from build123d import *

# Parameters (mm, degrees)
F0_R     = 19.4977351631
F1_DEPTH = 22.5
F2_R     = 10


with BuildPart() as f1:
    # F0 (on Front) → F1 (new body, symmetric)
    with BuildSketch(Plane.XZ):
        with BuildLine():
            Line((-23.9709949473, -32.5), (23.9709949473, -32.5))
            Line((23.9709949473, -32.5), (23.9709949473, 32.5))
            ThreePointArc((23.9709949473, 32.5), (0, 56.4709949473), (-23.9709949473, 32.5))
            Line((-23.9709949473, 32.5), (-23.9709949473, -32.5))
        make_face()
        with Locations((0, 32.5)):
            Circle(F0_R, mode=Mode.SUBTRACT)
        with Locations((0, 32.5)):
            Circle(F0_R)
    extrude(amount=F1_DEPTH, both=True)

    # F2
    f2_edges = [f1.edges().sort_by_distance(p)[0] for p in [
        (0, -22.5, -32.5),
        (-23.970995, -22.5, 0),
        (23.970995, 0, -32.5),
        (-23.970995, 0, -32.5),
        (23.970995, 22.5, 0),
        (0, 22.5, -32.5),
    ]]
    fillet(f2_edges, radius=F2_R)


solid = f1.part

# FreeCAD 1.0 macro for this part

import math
import FreeCAD as App
import Part
import Sketcher
from FreeCAD import Vector
Q = App.Units.Quantity


def edges_at(feature, points):
    """Names of the edges that pass closest to the given points."""
    edges = feature.Shape.Edges
    near = lambda p: min(range(len(edges)), key=lambda i: edges[i].distToShape(Part.Vertex(*p))[0])
    return sorted({f"Edge{near(p) + 1}" for p in points})

doc = App.newDocument("Part")
body = doc.addObject("PartDesign::Body", "Body")

sketch1 = body.newObject("Sketcher::SketchObject", "Sketch")
sketch1.AttachmentSupport = (doc.getObject("XZ_Plane"), [""])
sketch1.MapMode = "FlatFace"
sketch1.addGeometry([
    Part.LineSegment(Vector(-24, -32, 0), Vector(24, -32, 0)),
    Part.LineSegment(Vector(24, -32, 0), Vector(24, 32, 0)),
    Part.ArcOfCircle(Part.Circle(Vector(0, 32, 0), Vector(0, 0, 1), 24), math.radians(0), math.radians(180)),
    Part.LineSegment(Vector(-24, 32, 0), Vector(-24, -32, 0)),
], False)
sketch1.addConstraint([
    Sketcher.Constraint("Coincident", 0, 2, 1, 1),
    Sketcher.Constraint("Tangent", 1, 2, 2, 1),
    Sketcher.Constraint("Tangent", 2, 2, 3, 1),
    Sketcher.Constraint("Coincident", 3, 2, 0, 1),
    Sketcher.Constraint("Horizontal", 0),
    Sketcher.Constraint("Vertical", 1),
    Sketcher.Constraint("Vertical", 3),
    Sketcher.Constraint("Symmetric", 0, 2, 2, 2, -1, 1),
    Sketcher.Constraint("DistanceY", 1, 1, 1, 2, Q("65 mm")),
    Sketcher.Constraint("Radius", 2, Q("23.970995 mm")),
])
pad1 = body.newObject("PartDesign::Pad", "Pad")
pad1.Profile = sketch1
pad1.Length = 45
pad1.Midplane = True
doc.recompute()

fillet = body.newObject("PartDesign::Fillet", "Fillet")
fillet.Base = (pad1, edges_at(pad1, [
    (0, -22.5, -32.5),
    (-23.971, -22.5, 0),
    (23.971, 0, -32.5),
    (-23.971, 0, -32.5),
    (23.971, 22.5, 0),
    (0, 22.5, -32.5),
]))
fillet.Radius = 10

doc.recompute()
